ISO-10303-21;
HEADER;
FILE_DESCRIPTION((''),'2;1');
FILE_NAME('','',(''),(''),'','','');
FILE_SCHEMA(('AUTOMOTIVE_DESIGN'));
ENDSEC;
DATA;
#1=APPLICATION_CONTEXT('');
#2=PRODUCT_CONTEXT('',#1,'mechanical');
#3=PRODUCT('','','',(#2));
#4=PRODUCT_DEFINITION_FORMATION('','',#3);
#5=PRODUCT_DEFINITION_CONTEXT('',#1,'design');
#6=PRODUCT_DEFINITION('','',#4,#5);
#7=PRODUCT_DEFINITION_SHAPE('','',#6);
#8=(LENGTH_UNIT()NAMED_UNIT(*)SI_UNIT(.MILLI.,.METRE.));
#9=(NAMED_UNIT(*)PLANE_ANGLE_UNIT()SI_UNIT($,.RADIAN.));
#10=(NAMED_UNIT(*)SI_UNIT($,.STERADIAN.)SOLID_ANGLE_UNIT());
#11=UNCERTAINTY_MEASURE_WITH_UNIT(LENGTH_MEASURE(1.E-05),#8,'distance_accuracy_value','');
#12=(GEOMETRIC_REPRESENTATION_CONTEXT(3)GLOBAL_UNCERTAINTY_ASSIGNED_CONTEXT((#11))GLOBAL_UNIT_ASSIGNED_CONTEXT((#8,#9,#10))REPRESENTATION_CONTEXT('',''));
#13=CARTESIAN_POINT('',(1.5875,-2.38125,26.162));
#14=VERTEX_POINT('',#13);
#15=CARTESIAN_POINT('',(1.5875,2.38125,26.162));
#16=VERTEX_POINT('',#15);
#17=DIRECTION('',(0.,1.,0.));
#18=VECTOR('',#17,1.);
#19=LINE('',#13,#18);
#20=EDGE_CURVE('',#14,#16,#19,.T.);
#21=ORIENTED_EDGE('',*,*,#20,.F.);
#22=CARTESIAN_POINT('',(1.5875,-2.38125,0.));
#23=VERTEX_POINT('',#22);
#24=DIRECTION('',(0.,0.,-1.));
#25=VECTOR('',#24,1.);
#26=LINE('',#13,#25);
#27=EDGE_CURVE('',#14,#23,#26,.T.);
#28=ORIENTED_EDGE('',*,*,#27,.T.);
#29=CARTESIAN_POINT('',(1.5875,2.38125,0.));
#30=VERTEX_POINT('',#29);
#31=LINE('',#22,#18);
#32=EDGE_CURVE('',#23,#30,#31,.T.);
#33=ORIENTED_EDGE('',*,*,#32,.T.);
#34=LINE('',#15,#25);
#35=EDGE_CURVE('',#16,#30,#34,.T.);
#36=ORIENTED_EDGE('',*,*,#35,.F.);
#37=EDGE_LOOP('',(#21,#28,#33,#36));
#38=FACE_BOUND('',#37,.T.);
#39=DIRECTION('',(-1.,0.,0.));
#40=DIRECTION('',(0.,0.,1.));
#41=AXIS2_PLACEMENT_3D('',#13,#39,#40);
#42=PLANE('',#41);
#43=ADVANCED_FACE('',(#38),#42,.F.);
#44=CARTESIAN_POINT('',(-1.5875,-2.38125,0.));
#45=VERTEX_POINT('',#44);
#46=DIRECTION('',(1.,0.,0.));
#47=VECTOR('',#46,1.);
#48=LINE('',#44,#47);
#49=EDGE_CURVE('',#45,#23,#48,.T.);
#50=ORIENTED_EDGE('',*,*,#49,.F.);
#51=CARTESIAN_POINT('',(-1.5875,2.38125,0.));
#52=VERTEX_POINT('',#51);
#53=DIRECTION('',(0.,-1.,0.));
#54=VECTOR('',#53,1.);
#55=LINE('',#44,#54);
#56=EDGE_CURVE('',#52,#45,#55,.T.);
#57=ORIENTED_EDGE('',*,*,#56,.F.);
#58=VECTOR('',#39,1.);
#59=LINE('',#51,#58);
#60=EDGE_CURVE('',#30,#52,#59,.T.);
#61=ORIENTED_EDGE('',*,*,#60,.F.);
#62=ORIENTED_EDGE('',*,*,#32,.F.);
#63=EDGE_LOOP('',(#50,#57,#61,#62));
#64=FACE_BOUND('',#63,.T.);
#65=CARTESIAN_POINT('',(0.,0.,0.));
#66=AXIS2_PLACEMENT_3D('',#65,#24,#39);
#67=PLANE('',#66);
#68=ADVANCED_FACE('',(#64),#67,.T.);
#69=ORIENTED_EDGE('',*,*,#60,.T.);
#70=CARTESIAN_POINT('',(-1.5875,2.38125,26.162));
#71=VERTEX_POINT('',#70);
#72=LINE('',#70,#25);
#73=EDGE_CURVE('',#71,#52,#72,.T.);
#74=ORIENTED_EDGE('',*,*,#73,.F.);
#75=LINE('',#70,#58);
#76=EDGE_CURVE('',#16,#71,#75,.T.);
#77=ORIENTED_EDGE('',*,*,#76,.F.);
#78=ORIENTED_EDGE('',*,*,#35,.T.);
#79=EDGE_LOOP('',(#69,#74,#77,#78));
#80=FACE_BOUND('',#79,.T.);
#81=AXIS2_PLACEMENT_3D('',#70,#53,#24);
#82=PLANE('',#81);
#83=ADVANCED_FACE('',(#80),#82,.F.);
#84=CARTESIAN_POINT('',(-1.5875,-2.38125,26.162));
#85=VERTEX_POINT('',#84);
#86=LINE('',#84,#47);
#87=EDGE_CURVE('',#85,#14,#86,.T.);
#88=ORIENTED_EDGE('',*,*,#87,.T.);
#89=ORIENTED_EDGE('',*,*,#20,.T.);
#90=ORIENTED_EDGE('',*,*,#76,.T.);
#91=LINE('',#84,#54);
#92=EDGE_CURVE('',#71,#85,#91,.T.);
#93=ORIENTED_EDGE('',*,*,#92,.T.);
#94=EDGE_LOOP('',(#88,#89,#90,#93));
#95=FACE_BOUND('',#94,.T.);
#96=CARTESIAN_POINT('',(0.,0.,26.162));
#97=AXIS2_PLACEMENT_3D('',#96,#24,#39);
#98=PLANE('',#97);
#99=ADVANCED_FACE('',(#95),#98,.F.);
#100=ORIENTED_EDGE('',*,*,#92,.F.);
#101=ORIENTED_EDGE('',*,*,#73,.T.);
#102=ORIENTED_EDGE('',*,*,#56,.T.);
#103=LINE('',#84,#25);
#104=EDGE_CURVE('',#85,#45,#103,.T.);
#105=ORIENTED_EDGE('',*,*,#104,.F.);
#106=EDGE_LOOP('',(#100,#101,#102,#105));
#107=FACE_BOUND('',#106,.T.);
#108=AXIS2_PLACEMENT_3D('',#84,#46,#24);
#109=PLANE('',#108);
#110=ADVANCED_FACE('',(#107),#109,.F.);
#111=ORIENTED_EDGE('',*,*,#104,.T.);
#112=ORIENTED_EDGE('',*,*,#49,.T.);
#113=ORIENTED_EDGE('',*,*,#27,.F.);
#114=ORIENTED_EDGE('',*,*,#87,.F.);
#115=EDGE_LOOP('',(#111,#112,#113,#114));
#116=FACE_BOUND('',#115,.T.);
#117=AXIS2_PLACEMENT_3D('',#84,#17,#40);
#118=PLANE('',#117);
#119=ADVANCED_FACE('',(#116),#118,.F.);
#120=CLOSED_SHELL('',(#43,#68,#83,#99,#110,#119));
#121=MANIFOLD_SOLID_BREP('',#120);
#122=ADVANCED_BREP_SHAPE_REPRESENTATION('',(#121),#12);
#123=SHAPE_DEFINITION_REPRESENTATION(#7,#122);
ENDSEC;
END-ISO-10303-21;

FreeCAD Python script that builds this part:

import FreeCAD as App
import Part
import Sketcher
Q = App.Units.Quantity

doc = App.newDocument("Part")
params = doc.addObject("Spreadsheet::Sheet", "Params")
for row, (alias, value) in enumerate([
    ("sketch1_width", "0.125 in"),
    ("sketch1_height", "0.1875 in"),
    ("pad1_length", "1.03 in"),
], start=1):
    params.set(f"A{row}", alias)
    params.set(f"B{row}", "=" + value)
    params.setAlias(f"B{row}", alias)

body = doc.addObject("PartDesign::Body", "Body")

# Sketch on XY plane
sketch1 = doc.addObject("Sketcher::SketchObject", "Sketch")
body.addObject(sketch1)
sketch1.AttachmentSupport = (doc.XY_Plane, [""])
sketch1.MapMode = "FlatFace"
sketch1.addGeometry([
    Part.LineSegment(App.Vector(-1.6, 2.4, 0), App.Vector(-1.6, -2.4, 0)),
    Part.LineSegment(App.Vector(-1.6, -2.4, 0), App.Vector(1.6, -2.4, 0)),
    Part.LineSegment(App.Vector(1.6, -2.4, 0), App.Vector(1.6, 2.4, 0)),
    Part.LineSegment(App.Vector(1.6, 2.4, 0), App.Vector(-1.6, 2.4, 0)),
], False)
sketch1.addConstraint([
    Sketcher.Constraint("Coincident", 0, 2, 1, 1),
    Sketcher.Constraint("Coincident", 1, 2, 2, 1),
    Sketcher.Constraint("Coincident", 2, 2, 3, 1),
    Sketcher.Constraint("Coincident", 3, 2, 0, 1),
    Sketcher.Constraint("Vertical", 0),
    Sketcher.Constraint("Horizontal", 1),
    Sketcher.Constraint("Vertical", 2),
    Sketcher.Constraint("Horizontal", 3),
    Sketcher.Constraint("Symmetric", 0, 2, 2, 2, -1, 1),
    Sketcher.Constraint("DistanceX", 1, 1, 1, 2, Q("0.125 in")),
    Sketcher.Constraint("DistanceY", 0, 2, 0, 1, Q("0.1875 in")),
])
sketch1.setExpression("Constraints[9]", "Params.sketch1_width")
sketch1.setExpression("Constraints[10]", "Params.sketch1_height")
pad1 = doc.addObject("PartDesign::Pad", "Pad")
body.addObject(pad1)
pad1.Profile = sketch1
pad1.setExpression("Length", "Params.pad1_length")

doc.recompute()
